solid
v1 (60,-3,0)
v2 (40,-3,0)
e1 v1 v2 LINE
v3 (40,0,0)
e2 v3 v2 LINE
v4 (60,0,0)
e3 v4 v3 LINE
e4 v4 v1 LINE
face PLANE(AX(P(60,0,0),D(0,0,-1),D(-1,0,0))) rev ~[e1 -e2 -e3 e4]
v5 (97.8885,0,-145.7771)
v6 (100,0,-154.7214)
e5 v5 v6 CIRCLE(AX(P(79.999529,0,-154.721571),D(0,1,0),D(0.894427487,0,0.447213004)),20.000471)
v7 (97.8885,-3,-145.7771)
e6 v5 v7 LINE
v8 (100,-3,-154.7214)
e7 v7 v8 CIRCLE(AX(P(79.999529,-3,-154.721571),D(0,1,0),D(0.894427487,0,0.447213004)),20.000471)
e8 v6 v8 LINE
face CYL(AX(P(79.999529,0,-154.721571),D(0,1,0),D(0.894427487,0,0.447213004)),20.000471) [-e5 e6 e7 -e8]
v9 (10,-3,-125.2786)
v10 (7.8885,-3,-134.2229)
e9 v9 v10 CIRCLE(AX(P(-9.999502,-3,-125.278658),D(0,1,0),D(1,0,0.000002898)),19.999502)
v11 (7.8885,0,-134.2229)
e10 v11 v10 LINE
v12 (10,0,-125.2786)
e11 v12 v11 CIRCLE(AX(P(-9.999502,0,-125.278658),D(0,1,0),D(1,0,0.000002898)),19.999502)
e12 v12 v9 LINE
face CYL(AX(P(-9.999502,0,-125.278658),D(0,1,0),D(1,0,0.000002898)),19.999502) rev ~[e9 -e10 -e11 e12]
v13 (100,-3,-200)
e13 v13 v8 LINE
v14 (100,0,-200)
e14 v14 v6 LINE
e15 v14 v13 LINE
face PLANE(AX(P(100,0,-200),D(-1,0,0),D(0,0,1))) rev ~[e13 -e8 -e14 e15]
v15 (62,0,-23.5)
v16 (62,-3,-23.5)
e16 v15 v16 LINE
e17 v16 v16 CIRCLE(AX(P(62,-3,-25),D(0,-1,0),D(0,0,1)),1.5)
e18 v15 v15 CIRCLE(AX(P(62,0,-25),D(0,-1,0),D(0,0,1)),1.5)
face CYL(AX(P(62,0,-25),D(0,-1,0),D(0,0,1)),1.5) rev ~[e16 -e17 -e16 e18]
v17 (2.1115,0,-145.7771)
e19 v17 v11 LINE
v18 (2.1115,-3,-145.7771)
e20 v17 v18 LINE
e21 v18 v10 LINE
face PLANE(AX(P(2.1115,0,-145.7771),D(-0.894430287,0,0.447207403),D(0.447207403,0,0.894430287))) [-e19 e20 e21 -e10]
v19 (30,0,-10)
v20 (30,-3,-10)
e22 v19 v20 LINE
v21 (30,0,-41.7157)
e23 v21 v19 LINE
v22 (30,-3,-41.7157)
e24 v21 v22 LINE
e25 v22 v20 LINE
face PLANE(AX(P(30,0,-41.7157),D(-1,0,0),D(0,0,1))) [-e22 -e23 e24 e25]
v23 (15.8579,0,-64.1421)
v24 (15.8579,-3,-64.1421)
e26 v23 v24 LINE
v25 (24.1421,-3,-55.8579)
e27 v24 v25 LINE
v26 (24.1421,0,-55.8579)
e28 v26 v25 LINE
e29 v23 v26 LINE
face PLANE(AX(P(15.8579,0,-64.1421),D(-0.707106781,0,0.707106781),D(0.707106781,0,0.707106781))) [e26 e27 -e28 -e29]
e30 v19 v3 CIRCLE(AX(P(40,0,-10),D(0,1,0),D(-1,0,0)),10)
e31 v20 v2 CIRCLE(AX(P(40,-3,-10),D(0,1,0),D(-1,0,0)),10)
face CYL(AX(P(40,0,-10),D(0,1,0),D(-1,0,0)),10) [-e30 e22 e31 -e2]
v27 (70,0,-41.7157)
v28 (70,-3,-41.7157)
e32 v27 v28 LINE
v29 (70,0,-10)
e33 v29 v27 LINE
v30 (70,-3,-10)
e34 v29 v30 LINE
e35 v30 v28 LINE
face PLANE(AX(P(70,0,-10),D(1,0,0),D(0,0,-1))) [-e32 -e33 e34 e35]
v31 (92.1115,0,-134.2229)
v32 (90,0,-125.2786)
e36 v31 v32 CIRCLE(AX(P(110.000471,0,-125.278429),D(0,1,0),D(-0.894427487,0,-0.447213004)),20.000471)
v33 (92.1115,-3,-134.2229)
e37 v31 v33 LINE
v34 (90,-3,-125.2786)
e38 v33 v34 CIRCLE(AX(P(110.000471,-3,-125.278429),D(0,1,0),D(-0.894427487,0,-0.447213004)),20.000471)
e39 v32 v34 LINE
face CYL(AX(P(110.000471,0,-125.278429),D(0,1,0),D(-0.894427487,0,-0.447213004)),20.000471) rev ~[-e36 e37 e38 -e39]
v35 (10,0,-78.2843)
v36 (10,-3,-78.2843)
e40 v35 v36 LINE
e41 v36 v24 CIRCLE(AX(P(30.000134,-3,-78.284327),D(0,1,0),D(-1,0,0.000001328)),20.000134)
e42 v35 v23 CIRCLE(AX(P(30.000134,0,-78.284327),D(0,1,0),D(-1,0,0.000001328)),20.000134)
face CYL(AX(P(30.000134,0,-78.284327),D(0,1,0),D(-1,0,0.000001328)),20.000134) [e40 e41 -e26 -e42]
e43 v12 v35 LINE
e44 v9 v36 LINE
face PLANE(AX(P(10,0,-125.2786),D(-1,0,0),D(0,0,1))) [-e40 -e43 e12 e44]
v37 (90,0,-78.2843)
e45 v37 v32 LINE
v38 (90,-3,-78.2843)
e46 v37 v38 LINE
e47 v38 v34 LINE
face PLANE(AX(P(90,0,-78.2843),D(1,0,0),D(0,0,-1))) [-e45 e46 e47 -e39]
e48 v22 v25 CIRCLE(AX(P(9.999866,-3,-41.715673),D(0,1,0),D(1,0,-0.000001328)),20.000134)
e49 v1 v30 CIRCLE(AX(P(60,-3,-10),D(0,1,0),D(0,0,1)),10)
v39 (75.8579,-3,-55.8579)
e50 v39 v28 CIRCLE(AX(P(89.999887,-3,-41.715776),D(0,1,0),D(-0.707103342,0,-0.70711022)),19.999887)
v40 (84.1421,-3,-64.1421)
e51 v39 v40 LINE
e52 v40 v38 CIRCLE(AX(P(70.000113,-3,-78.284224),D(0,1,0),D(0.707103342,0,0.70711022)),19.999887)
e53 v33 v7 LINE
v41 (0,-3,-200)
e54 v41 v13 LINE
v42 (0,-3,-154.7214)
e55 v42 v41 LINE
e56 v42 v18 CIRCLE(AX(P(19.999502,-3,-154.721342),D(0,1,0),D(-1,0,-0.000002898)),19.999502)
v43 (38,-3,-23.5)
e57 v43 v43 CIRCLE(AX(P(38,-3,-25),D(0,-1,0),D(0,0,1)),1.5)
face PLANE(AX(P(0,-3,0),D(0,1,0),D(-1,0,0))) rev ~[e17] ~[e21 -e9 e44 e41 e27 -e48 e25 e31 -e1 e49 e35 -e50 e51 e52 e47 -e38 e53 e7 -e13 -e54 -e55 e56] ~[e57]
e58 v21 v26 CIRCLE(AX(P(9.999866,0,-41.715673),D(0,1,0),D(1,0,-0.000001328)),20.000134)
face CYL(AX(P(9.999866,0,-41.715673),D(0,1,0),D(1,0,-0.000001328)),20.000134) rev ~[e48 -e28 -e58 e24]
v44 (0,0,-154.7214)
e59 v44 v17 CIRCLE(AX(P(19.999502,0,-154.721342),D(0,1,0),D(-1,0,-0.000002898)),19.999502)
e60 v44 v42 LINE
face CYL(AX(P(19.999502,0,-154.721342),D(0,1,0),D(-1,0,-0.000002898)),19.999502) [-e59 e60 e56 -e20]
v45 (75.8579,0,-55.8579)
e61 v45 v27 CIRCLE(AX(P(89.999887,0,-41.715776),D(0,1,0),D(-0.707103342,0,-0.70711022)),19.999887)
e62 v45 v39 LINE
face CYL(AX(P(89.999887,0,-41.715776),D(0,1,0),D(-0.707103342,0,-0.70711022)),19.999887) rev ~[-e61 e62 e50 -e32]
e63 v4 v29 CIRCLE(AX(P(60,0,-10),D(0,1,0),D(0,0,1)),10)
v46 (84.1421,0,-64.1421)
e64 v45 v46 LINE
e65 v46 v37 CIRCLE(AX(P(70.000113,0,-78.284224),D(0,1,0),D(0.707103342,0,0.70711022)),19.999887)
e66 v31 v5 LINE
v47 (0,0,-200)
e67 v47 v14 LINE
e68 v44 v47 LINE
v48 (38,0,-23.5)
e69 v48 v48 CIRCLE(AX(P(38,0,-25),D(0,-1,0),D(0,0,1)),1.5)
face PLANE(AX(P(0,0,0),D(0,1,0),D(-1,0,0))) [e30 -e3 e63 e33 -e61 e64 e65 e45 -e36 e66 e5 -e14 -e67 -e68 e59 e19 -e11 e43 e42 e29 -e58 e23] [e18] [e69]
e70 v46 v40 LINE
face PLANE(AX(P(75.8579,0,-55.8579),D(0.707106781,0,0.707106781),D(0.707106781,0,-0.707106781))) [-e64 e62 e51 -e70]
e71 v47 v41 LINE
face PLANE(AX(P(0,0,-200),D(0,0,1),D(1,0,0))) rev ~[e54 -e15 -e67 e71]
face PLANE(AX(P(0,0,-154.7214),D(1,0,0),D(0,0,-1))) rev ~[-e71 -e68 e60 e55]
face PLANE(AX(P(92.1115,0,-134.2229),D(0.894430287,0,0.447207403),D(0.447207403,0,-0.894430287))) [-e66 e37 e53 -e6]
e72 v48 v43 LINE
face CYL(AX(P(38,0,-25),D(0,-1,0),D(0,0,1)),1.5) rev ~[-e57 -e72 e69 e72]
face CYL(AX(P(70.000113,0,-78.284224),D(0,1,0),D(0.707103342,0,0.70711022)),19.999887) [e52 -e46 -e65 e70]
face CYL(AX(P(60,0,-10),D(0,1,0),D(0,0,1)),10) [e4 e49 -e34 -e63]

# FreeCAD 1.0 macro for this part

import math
import FreeCAD as App
import Part
import Sketcher
Q = App.Units.Quantity

doc = App.newDocument("Part")
body = doc.addObject("PartDesign::Body", "Body")

# Sketch on XZ plane
sketch1 = doc.addObject("Sketcher::SketchObject", "Sketch")
body.addObject(sketch1)
sketch1.AttachmentSupport = (doc.XZ_Plane, [""])
sketch1.MapMode = "FlatFace"
sketch1.addGeometry([
    Part.LineSegment(App.Vector(0, -200, 0), App.Vector(0, -155, 0)),  # 0
    Part.ArcOfCircle(Part.Circle(App.Vector(20, -155, 0), App.Vector(0, 0, 1), 20), math.radians(153), math.radians(180)),  # 1
    Part.LineSegment(App.Vector(2, -146, 0), App.Vector(8, -134, 0)),  # 2
    Part.ArcOfCircle(Part.Circle(App.Vector(-10, -125, 0), App.Vector(0, 0, 1), 20), math.radians(-27), math.radians(0)),  # 3
    Part.LineSegment(App.Vector(10, -125, 0), App.Vector(10, -78, 0)),  # 4
    Part.ArcOfCircle(Part.Circle(App.Vector(30, -78, 0), App.Vector(0, 0, 1), 20), math.radians(135), math.radians(180)),  # 5
    Part.LineSegment(App.Vector(16, -64, 0), App.Vector(24, -56, 0)),  # 6
    Part.ArcOfCircle(Part.Circle(App.Vector(10, -42, 0), App.Vector(0, 0, 1), 20), math.radians(-45), math.radians(0)),  # 7
    Part.LineSegment(App.Vector(30, -42, 0), App.Vector(30, -10, 0)),  # 8
    Part.ArcOfCircle(Part.Circle(App.Vector(40, -10, 0), App.Vector(0, 0, 1), 10), math.radians(90), math.radians(180)),  # 9
    Part.LineSegment(App.Vector(40, 0, 0), App.Vector(60, 0, 0)),  # 10
    Part.ArcOfCircle(Part.Circle(App.Vector(60, -10, 0), App.Vector(0, 0, 1), 10), math.radians(0), math.radians(90)),  # 11
    Part.LineSegment(App.Vector(70, -10, 0), App.Vector(70, -42, 0)),  # 12
    Part.ArcOfCircle(Part.Circle(App.Vector(90, -42, 0), App.Vector(0, 0, 1), 20), math.radians(180), math.radians(225)),  # 13
    Part.LineSegment(App.Vector(76, -56, 0), App.Vector(84, -64, 0)),  # 14
    Part.ArcOfCircle(Part.Circle(App.Vector(70, -78, 0), App.Vector(0, 0, 1), 20), math.radians(0), math.radians(45)),  # 15
    Part.LineSegment(App.Vector(90, -78, 0), App.Vector(90, -125, 0)),  # 16
    Part.ArcOfCircle(Part.Circle(App.Vector(110, -125, 0), App.Vector(0, 0, 1), 20), math.radians(180), math.radians(207)),  # 17
    Part.LineSegment(App.Vector(92, -134, 0), App.Vector(98, -146, 0)),  # 18
    Part.ArcOfCircle(Part.Circle(App.Vector(80, -155, 0), App.Vector(0, 0, 1), 20), math.radians(0), math.radians(27)),  # 19
    Part.LineSegment(App.Vector(100, -155, 0), App.Vector(100, -200, 0)),  # 20
    Part.LineSegment(App.Vector(100, -200, 0), App.Vector(0, -200, 0)),  # 21
], False)
sketch1.addConstraint([
    Sketcher.Constraint("Tangent", 0, 2, 1, 2),
    Sketcher.Constraint("Tangent", 1, 1, 2, 1),
    Sketcher.Constraint("Tangent", 2, 2, 3, 1),
    Sketcher.Constraint("Tangent", 3, 2, 4, 1),
    Sketcher.Constraint("Tangent", 4, 2, 5, 2),
    Sketcher.Constraint("Tangent", 5, 1, 6, 1),
    Sketcher.Constraint("Tangent", 6, 2, 7, 1),
    Sketcher.Constraint("Tangent", 7, 2, 8, 1),
    Sketcher.Constraint("Tangent", 8, 2, 9, 2),
    Sketcher.Constraint("Tangent", 9, 1, 10, 1),
    Sketcher.Constraint("Tangent", 10, 2, 11, 2),
    Sketcher.Constraint("Tangent", 11, 1, 12, 1),
    Sketcher.Constraint("Tangent", 12, 2, 13, 1),
    Sketcher.Constraint("Tangent", 13, 2, 14, 1),
    Sketcher.Constraint("Tangent", 14, 2, 15, 2),
    Sketcher.Constraint("Tangent", 15, 1, 16, 1),
    Sketcher.Constraint("Tangent", 16, 2, 17, 1),
    Sketcher.Constraint("Tangent", 17, 2, 18, 1),
    Sketcher.Constraint("Tangent", 18, 2, 19, 2),
    Sketcher.Constraint("Tangent", 19, 1, 20, 1),
    Sketcher.Constraint("Coincident", 20, 2, 21, 1),
    Sketcher.Constraint("Coincident", 21, 2, 0, 1),
    Sketcher.Constraint("Vertical", 0),
    Sketcher.Constraint("Vertical", 4),
    Sketcher.Constraint("Vertical", 8),
    Sketcher.Constraint("Horizontal", 10),
    Sketcher.Constraint("Vertical", 12),
    Sketcher.Constraint("Vertical", 16),
    Sketcher.Constraint("Vertical", 20),
    Sketcher.Constraint("Horizontal", 21),
    Sketcher.Constraint("Equal", 1, 3),
    Sketcher.Constraint("Equal", 3, 5),
    Sketcher.Constraint("Equal", 5, 7),
    Sketcher.Constraint("Equal", 9, 11),
    Sketcher.Constraint("Equal", 7, 13),
    Sketcher.Constraint("Equal", 13, 15),
    Sketcher.Constraint("Equal", 15, 17),
    Sketcher.Constraint("Equal", 17, 19),
    Sketcher.Constraint("PointOnObject", 0, 2, -2),
    Sketcher.Constraint("PointOnObject", 9, 1, -1),
    Sketcher.Constraint("Perpendicular", 6, 14),
    Sketcher.Constraint("Horizontal", 7, 3, 13, 3),
    Sketcher.Constraint("Horizontal", 5, 3, 15, 3),
    Sketcher.Constraint("Horizontal", 3, 3, 17, 3),
    Sketcher.Constraint("Horizontal", 1, 3, 19, 3),
    Sketcher.Constraint("Horizontal", 6, 2, 13, 2),
    Sketcher.Constraint("Horizontal", 2, 2, 17, 2),
    Sketcher.Constraint("Vertical", 7, 3, 3, 2),
    Sketcher.Constraint("Radius", 1, Q("0.7874 in")),
    Sketcher.Constraint("Radius", 9, Q("0.3937 in")),
    Sketcher.Constraint("DistanceX", 21, 2, 21, 1, Q("3.937 in")),
    Sketcher.Constraint("DistanceX", 10, 1, 10, 2, Q("0.7874 in")),
    Sketcher.Constraint("DistanceY", 20, 2, -1, 1, 200.0),
    Sketcher.Constraint("DistanceY", 0, 1, 0, 2, 45.2786),
    Sketcher.Constraint("DistanceY", 4, 1, 4, 2, 46.9943),
    Sketcher.Constraint("DistanceY", 8, 1, 8, 2, 31.7157),
])
pad1 = doc.addObject("PartDesign::Pad", "Pad")
body.addObject(pad1)
pad1.Profile = sketch1
pad1.Length = Q("0.1181102 in")

# Sketch on XZ plane
sketch2 = doc.addObject("Sketcher::SketchObject", "Sketch001")
body.addObject(sketch2)
sketch2.AttachmentSupport = (doc.XZ_Plane, [""])
sketch2.MapMode = "FlatFace"
sketch2.addGeometry([
    Part.Circle(App.Vector(38, -25, 0), App.Vector(0, 0, 1), 1.5),
    Part.Circle(App.Vector(62, -25, 0), App.Vector(0, 0, 1), 1.5),
], False)
sketch2.addConstraint([
    Sketcher.Constraint("Equal", 0, 1),
    Sketcher.Constraint("Horizontal", 0, 3, 1, 3),
    Sketcher.Constraint("Diameter", 0, Q("0.1181 in")),
    Sketcher.Constraint("DistanceX", -1, 1, 0, 3, 38.0),
    Sketcher.Constraint("DistanceY", 0, 3, -1, 1, 25.0),
    Sketcher.Constraint("DistanceX", -1, 1, 1, 3, 62.0),
])
doc.recompute()
hole = doc.addObject("PartDesign::Hole", "Hole")
body.addObject(hole)
hole.Profile = sketch2
hole.ThreadType = "None"
hole.Diameter = Q("0.1181102 in")
hole.DepthType = "ThroughAll"
hole.Reversed = True

doc.recompute()
